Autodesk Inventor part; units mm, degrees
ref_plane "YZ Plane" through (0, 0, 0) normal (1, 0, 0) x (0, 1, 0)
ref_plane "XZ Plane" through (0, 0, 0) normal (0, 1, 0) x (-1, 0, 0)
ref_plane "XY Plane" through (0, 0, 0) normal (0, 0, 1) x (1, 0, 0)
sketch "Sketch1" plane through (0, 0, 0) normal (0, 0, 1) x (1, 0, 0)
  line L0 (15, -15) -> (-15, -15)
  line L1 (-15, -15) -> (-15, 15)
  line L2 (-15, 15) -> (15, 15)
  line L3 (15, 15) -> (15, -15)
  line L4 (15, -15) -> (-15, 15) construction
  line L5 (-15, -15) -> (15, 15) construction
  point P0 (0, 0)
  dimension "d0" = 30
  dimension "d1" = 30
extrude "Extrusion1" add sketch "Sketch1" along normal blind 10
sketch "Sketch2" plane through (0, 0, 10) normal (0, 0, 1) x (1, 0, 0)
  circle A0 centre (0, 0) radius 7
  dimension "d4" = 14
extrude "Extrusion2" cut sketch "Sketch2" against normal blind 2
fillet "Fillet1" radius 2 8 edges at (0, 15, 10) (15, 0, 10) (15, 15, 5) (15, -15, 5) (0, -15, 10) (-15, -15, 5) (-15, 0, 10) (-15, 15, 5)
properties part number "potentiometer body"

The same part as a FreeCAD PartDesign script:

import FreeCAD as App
import Part
import Sketcher
from FreeCAD import Vector
Q = App.Units.Quantity


def edges_at(feature, points):
    """Names of the edges that pass closest to the given points."""
    edges = feature.Shape.Edges
    near = lambda p: min(range(len(edges)), key=lambda i: edges[i].distToShape(Part.Vertex(*p))[0])
    return sorted({f"Edge{near(p) + 1}" for p in points})


def add_polygon(sketch, points):
    """Adds a closed chain of lines whose ends are joined by coincident constraints."""
    first, n = sketch.GeometryCount, len(points)
    for a, b in zip(points, points[1:] + points[:1]):
        sketch.addGeometry(Part.LineSegment(App.Vector(*a, 0), App.Vector(*b, 0)), False)
    for i in range(n):
        sketch.addConstraint(Sketcher.Constraint("Coincident", first + i, 2, first + (i + 1) % n, 1))

doc = App.newDocument("Part")
body = doc.addObject("PartDesign::Body", "Body")

# Sketch on XY plane
sketch1 = body.newObject("Sketcher::SketchObject", "Sketch")
sketch1.AttachmentSupport = (doc.getObject("XY_Plane"), [""])
sketch1.MapMode = "FlatFace"
add_polygon(sketch1, [(-15, -15), (15, -15), (15, 15), (-15, 15)])  # lines 0-3
sketch1.addConstraint([
    Sketcher.Constraint("Horizontal", 0),
    Sketcher.Constraint("Vertical", 1),
    Sketcher.Constraint("Horizontal", 2),
    Sketcher.Constraint("Vertical", 3),
    Sketcher.Constraint("Symmetric", 0, 2, 2, 2, -1, 1),
    Sketcher.Constraint("Equal", 2, 1),
    Sketcher.Constraint("DistanceX", 0, 1, 0, 2, Q("30 mm")),
])
pad1 = body.newObject("PartDesign::Pad", "Pad")
pad1.Profile = sketch1
pad1.Length = 10

# Sketch on XY plane
sketch2 = body.newObject("Sketcher::SketchObject", "Sketch001")
sketch2.AttachmentSupport = (doc.getObject("XY_Plane"), [""])
sketch2.MapMode = "FlatFace"
sketch2.AttachmentOffset = App.Placement(Vector(0, 0, 10), App.Rotation())
sketch2.addGeometry(Part.Circle(Vector(0, 0, 0), Vector(0, 0, 1), 7), False)
sketch2.addConstraint([
    Sketcher.Constraint("Coincident", 0, 3, -1, 1),
    Sketcher.Constraint("Diameter", 0, Q("14 mm")),
])
pocket1 = body.newObject("PartDesign::Pocket", "Pocket")
pocket1.Profile = sketch2
pocket1.Length = 2
doc.recompute()

fillet = body.newObject("PartDesign::Fillet", "Fillet")
fillet.Base = (pocket1, edges_at(pocket1, [
    (0, 15, 10),
    (15, 0, 10),
    (15, 15, 5),
    (15, -15, 5),
    (0, -15, 10),
    (-15, -15, 5),
    (-15, 0, 10),
    (-15, 15, 5),
]))
fillet.Radius = 2

doc.recompute()
